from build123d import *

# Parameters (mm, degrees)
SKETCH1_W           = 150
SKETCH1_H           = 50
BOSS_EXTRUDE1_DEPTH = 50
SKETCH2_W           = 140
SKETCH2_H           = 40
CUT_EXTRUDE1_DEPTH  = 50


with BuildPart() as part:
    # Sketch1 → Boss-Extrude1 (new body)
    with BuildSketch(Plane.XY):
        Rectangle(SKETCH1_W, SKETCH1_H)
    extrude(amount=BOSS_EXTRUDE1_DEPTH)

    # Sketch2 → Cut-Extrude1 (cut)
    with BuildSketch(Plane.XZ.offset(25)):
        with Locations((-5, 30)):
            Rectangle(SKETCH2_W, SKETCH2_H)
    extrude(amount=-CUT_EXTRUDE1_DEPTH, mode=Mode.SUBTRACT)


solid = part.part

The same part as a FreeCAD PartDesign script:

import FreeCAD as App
import Part
import Sketcher
from FreeCAD import Vector
Q = App.Units.Quantity


def add_polygon(sketch, points):
    """Adds a closed chain of lines whose ends are joined by coincident constraints."""
    first, n = sketch.GeometryCount, len(points)
    for a, b in zip(points, points[1:] + points[:1]):
        sketch.addGeometry(Part.LineSegment(App.Vector(*a, 0), App.Vector(*b, 0)), False)
    for i in range(n):
        sketch.addConstraint(Sketcher.Constraint("Coincident", first + i, 2, first + (i + 1) % n, 1))

doc = App.newDocument("Part")
body = doc.addObject("PartDesign::Body", "Body")

sketch1 = body.newObject("Sketcher::SketchObject", "Sketch")
sketch1.AttachmentSupport = (doc.getObject("XY_Plane"), [""])
sketch1.MapMode = "FlatFace"
add_polygon(sketch1, [(-75, 25), (-75, -25), (75, -25), (75, 25)])
sketch1.addConstraint(Sketcher.Constraint("Vertical", 0))
sketch1.addConstraint(Sketcher.Constraint("Horizontal", 1))
sketch1.addConstraint(Sketcher.Constraint("Vertical", 2))
sketch1.addConstraint(Sketcher.Constraint("Horizontal", 3))
sketch1.addConstraint(Sketcher.Constraint("Symmetric", 0, 2, 2, 2, -1, 1))
sketch1.addConstraint(Sketcher.Constraint("DistanceX", 1, 1, 1, 2, Q("150 mm")))
sketch1.addConstraint(Sketcher.Constraint("DistanceY", 0, 2, 0, 1, Q("50 mm")))
pad1 = body.newObject("PartDesign::Pad", "Pad")
pad1.Profile = sketch1
pad1.Length = 50

sketch2 = body.newObject("Sketcher::SketchObject", "Sketch001")
sketch2.AttachmentSupport = (doc.getObject("XZ_Plane"), [""])
sketch2.MapMode = "FlatFace"
sketch2.AttachmentOffset = App.Placement(Vector(0, 0, 25), App.Rotation())
add_polygon(sketch2, [(-75, 50), (-75, 10), (65, 10), (65, 50)])
sketch2.addConstraint(Sketcher.Constraint("Vertical", 0))
sketch2.addConstraint(Sketcher.Constraint("Horizontal", 1))
sketch2.addConstraint(Sketcher.Constraint("Vertical", 2))
sketch2.addConstraint(Sketcher.Constraint("Horizontal", 3))
sketch2.addConstraint(Sketcher.Constraint("DistanceX", 1, 1, 1, 2, Q("140 mm")))
sketch2.addConstraint(Sketcher.Constraint("DistanceY", 0, 2, 0, 1, Q("40 mm")))
sketch2.addConstraint(Sketcher.Constraint("DistanceX", 0, 2, -1, 1, Q("75 mm")))
sketch2.addConstraint(Sketcher.Constraint("DistanceY", -1, 1, 0, 2, Q("10 mm")))
pocket1 = body.newObject("PartDesign::Pocket", "Pocket")
pocket1.Profile = sketch2
pocket1.Length = 50

doc.recompute()
